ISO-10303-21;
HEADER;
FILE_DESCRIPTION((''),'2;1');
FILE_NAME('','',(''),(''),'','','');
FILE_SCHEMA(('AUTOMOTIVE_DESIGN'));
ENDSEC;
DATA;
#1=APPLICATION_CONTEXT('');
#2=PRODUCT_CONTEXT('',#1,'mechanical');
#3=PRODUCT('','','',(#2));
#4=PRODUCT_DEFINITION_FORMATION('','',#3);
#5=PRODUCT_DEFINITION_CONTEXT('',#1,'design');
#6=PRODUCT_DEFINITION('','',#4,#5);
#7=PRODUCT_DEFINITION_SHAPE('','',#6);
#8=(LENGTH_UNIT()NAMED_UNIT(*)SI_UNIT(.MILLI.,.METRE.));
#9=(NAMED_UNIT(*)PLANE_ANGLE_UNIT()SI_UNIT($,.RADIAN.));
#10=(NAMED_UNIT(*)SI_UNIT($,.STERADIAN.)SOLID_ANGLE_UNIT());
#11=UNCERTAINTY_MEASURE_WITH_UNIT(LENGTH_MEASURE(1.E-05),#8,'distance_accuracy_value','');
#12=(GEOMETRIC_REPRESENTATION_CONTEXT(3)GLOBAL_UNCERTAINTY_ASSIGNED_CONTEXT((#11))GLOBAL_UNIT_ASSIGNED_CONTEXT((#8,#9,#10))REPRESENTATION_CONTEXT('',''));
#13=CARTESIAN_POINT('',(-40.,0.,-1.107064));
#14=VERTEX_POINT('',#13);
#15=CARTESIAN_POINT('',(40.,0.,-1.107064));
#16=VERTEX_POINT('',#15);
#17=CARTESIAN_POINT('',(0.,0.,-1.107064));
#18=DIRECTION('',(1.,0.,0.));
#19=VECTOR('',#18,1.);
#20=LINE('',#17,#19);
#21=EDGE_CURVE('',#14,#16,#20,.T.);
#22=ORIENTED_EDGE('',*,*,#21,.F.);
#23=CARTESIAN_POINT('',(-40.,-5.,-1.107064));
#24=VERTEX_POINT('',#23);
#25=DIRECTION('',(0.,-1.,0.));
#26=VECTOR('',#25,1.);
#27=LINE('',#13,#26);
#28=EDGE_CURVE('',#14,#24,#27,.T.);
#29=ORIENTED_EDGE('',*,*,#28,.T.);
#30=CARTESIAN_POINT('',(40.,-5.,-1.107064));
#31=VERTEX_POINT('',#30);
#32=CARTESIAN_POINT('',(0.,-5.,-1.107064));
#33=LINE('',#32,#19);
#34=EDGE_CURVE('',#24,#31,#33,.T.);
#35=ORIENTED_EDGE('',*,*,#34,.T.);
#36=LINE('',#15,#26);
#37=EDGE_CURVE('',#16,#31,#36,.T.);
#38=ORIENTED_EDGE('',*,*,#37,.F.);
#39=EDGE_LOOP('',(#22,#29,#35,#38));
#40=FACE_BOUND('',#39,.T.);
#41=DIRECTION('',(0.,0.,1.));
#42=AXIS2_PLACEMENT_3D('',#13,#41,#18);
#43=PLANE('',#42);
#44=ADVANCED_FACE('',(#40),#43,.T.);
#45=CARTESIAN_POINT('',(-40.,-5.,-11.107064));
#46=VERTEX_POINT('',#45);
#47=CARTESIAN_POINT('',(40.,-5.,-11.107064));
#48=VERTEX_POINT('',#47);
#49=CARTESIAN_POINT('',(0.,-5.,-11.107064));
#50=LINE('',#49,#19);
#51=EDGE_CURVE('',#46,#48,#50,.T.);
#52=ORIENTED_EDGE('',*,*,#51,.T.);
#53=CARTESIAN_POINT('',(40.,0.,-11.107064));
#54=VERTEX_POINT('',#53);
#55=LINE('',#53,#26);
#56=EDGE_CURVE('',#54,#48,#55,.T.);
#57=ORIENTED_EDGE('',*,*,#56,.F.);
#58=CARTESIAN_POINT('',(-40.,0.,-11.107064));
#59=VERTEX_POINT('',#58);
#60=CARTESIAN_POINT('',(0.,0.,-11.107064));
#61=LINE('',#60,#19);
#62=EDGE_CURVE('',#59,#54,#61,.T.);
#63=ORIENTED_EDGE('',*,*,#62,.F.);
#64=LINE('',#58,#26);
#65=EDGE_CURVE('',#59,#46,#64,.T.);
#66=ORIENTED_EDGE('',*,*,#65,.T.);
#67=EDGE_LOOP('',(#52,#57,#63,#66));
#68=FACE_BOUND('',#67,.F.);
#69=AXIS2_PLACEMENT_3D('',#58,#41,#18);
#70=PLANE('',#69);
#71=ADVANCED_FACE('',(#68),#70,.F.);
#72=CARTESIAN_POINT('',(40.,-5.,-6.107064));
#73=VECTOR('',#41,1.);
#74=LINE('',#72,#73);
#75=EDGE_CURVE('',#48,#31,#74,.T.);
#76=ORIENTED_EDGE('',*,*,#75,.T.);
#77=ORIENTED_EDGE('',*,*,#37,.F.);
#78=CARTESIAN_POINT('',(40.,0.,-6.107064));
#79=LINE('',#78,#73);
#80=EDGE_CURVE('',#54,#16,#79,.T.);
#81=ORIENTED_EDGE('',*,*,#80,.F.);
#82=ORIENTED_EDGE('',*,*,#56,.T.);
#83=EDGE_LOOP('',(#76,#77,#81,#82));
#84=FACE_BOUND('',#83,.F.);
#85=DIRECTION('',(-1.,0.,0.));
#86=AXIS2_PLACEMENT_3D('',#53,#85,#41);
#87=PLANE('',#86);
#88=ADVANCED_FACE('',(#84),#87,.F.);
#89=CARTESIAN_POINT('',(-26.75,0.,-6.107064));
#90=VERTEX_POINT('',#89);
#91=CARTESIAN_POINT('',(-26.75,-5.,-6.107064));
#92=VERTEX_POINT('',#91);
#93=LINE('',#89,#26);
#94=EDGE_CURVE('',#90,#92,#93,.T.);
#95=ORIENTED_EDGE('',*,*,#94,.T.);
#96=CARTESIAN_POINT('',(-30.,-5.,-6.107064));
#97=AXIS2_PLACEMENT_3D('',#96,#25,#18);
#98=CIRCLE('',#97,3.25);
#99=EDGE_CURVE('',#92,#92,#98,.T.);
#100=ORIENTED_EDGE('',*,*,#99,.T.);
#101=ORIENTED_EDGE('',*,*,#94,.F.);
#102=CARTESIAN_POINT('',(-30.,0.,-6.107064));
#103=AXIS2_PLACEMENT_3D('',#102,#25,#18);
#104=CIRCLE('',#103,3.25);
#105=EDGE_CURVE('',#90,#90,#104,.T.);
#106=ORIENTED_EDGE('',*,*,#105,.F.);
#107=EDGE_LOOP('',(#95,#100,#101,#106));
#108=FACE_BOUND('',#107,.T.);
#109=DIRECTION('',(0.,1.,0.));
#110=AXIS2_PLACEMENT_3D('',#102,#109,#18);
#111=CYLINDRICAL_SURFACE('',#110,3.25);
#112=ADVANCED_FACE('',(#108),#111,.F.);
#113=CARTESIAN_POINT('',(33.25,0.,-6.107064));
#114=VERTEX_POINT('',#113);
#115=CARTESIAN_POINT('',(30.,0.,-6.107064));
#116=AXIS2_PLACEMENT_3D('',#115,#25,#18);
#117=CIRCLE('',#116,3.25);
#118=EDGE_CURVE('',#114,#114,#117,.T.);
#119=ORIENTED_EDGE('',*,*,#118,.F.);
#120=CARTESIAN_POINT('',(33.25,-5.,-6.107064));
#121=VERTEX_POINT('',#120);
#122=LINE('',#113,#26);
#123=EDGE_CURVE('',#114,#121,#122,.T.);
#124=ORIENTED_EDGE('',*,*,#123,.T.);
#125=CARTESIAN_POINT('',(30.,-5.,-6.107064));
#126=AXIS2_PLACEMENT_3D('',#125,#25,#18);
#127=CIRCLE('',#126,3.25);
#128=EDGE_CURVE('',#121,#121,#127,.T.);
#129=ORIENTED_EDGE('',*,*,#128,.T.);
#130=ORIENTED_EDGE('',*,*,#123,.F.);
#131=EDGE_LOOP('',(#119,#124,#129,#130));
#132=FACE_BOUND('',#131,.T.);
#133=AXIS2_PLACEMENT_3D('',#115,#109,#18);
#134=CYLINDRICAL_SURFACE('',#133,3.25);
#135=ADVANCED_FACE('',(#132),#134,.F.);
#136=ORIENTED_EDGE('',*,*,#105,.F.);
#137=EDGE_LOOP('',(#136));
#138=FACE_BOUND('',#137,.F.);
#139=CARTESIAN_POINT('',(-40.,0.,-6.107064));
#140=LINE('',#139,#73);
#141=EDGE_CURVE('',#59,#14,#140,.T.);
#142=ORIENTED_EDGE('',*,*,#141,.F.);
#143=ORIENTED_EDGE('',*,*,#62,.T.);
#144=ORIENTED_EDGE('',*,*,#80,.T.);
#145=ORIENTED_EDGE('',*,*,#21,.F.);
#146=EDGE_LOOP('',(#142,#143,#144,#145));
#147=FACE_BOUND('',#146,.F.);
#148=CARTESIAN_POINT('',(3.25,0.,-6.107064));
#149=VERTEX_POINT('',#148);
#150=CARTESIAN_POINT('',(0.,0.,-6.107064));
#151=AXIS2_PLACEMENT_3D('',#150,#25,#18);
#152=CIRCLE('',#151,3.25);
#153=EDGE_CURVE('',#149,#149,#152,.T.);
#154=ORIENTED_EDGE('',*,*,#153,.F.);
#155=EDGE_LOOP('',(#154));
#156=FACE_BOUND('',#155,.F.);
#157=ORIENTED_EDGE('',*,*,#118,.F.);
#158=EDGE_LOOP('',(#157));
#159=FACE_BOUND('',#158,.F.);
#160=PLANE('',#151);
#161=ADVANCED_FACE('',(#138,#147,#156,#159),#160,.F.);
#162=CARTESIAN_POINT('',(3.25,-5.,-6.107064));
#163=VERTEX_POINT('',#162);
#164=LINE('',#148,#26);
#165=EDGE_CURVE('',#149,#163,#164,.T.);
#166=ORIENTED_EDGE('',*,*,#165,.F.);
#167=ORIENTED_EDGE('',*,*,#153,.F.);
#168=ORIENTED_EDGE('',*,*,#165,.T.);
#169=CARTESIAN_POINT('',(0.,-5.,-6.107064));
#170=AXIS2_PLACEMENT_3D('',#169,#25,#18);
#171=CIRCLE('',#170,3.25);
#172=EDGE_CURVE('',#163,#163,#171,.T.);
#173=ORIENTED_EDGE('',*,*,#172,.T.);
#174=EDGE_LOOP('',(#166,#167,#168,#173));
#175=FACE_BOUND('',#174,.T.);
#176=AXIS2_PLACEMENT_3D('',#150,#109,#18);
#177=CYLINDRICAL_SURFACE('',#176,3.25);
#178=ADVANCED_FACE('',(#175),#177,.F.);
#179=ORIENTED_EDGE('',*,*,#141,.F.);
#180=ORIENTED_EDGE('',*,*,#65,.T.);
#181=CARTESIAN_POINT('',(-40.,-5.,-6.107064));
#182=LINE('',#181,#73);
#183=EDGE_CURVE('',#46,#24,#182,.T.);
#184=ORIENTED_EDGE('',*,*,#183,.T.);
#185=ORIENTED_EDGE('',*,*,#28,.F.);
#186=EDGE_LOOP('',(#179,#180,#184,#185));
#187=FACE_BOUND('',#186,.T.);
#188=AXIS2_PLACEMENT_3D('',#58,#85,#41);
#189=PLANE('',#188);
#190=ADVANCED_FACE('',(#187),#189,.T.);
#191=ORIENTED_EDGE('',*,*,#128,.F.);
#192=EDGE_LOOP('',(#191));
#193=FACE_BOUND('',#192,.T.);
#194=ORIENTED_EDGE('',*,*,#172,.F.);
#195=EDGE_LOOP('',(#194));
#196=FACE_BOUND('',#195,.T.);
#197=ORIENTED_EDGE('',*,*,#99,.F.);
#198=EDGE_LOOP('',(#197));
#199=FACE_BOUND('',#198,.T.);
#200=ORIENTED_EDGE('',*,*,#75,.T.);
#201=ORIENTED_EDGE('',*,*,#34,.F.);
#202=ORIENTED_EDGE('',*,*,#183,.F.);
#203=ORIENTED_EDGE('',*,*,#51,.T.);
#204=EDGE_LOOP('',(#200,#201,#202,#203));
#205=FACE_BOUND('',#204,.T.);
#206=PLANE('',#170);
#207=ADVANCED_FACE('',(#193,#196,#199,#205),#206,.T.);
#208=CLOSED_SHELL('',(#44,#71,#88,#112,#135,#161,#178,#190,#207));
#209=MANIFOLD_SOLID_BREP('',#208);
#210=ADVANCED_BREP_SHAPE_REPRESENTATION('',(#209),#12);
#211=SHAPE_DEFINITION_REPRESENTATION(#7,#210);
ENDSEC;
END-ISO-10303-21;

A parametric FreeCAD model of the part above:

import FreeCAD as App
import Part
import Sketcher
Q = App.Units.Quantity

doc = App.newDocument("Part")
params = doc.addObject("Spreadsheet::Sheet", "Params")
for row, (alias, value) in enumerate([
    ("sketch1_diameter", "6.5 mm"),
    ("sketch1_width", "80 mm"),
    ("sketch1_height", "10 mm"),
    ("pad1_length", "5 mm"),
    ("sketch2_diameter", "6.5 mm"),
    ("sketch2_width", "80 mm"),
    ("sketch2_height", "10 mm"),
    ("pad2_length", "5 mm"),
], start=1):
    params.set(f"A{row}", alias)
    params.set(f"B{row}", "=" + value)
    params.setAlias(f"B{row}", alias)

body = doc.addObject("PartDesign::Body", "Body")

# Sketch on XZ plane
sketch1 = doc.addObject("Sketcher::SketchObject", "Sketch")
body.addObject(sketch1)
sketch1.AttachmentSupport = (doc.XZ_Plane, [""])
sketch1.MapMode = "FlatFace"
sketch1.addGeometry([
    Part.LineSegment(App.Vector(-40, -1.1, 0), App.Vector(-40, -11.1, 0)),  # 0
    Part.LineSegment(App.Vector(-40, -11.1, 0), App.Vector(40, -11.1, 0)),  # 1
    Part.LineSegment(App.Vector(40, -11.1, 0), App.Vector(40, -1.1, 0)),  # 2
    Part.LineSegment(App.Vector(40, -1.1, 0), App.Vector(-40, -1.1, 0)),  # 3
    Part.Circle(App.Vector(-30, -6.1, 0), App.Vector(0, 0, 1), 3.2),  # 4
    Part.Circle(App.Vector(0, -6.1, 0), App.Vector(0, 0, 1), 3.2),  # 5
    Part.Circle(App.Vector(30, -6.1, 0), App.Vector(0, 0, 1), 3.2),  # 6
], False)
sketch1.addConstraint([
    Sketcher.Constraint("Coincident", 0, 2, 1, 1),
    Sketcher.Constraint("Coincident", 1, 2, 2, 1),
    Sketcher.Constraint("Coincident", 2, 2, 3, 1),
    Sketcher.Constraint("Coincident", 3, 2, 0, 1),
    Sketcher.Constraint("Vertical", 0),
    Sketcher.Constraint("Horizontal", 1),
    Sketcher.Constraint("Vertical", 2),
    Sketcher.Constraint("Horizontal", 3),
    Sketcher.Constraint("Equal", 4, 5),
    Sketcher.Constraint("Equal", 5, 6),
    Sketcher.Constraint("Symmetric", 4, 3, 6, 3, -2),
    Sketcher.Constraint("PointOnObject", 5, 3, -2),
    Sketcher.Constraint("Horizontal", 4, 3, 5, 3),
    Sketcher.Constraint("Diameter", 4, Q("6.5 mm")),
    Sketcher.Constraint("DistanceX", 1, 1, 1, 2, Q("80 mm")),
    Sketcher.Constraint("DistanceY", 0, 2, 0, 1, Q("10 mm")),
    Sketcher.Constraint("DistanceX", 4, 3, -1, 1, Q("30 mm")),
    Sketcher.Constraint("DistanceX", 0, 2, -1, 1, Q("40 mm")),
    Sketcher.Constraint("DistanceY", 0, 2, 4, 3, Q("5 mm")),
    Sketcher.Constraint("DistanceY", 4, 3, -1, 1, Q("6.107064 mm")),
])
sketch1.setExpression("Constraints[13]", "Params.sketch1_diameter")
sketch1.setExpression("Constraints[14]", "Params.sketch1_width")
sketch1.setExpression("Constraints[15]", "Params.sketch1_height")
pad1 = doc.addObject("PartDesign::Pad", "Pad")
body.addObject(pad1)
pad1.Profile = sketch1
pad1.setExpression("Length", "Params.pad1_length")

# Sketch on XZ plane
sketch2 = doc.addObject("Sketcher::SketchObject", "Sketch001")
body.addObject(sketch2)
sketch2.AttachmentSupport = (doc.XZ_Plane, [""])
sketch2.MapMode = "FlatFace"
sketch2.addGeometry([
    Part.LineSegment(App.Vector(-40, -1.1, 0), App.Vector(-40, -11.1, 0)),  # 0
    Part.LineSegment(App.Vector(-40, -11.1, 0), App.Vector(40, -11.1, 0)),  # 1
    Part.LineSegment(App.Vector(40, -11.1, 0), App.Vector(40, -1.1, 0)),  # 2
    Part.LineSegment(App.Vector(40, -1.1, 0), App.Vector(-40, -1.1, 0)),  # 3
    Part.Circle(App.Vector(-30, -6.1, 0), App.Vector(0, 0, 1), 3.2),  # 4
    Part.Circle(App.Vector(0, -6.1, 0), App.Vector(0, 0, 1), 3.2),  # 5
    Part.Circle(App.Vector(30, -6.1, 0), App.Vector(0, 0, 1), 3.2),  # 6
], False)
sketch2.addConstraint([
    Sketcher.Constraint("Coincident", 0, 2, 1, 1),
    Sketcher.Constraint("Coincident", 1, 2, 2, 1),
    Sketcher.Constraint("Coincident", 2, 2, 3, 1),
    Sketcher.Constraint("Coincident", 3, 2, 0, 1),
    Sketcher.Constraint("Vertical", 0),
    Sketcher.Constraint("Horizontal", 1),
    Sketcher.Constraint("Vertical", 2),
    Sketcher.Constraint("Horizontal", 3),
    Sketcher.Constraint("Equal", 4, 5),
    Sketcher.Constraint("Equal", 5, 6),
    Sketcher.Constraint("Symmetric", 4, 3, 6, 3, -2),
    Sketcher.Constraint("PointOnObject", 5, 3, -2),
    Sketcher.Constraint("Horizontal", 4, 3, 5, 3),
    Sketcher.Constraint("Diameter", 4, Q("6.5 mm")),
    Sketcher.Constraint("DistanceX", 1, 1, 1, 2, Q("80 mm")),
    Sketcher.Constraint("DistanceY", 0, 2, 0, 1, Q("10 mm")),
    Sketcher.Constraint("DistanceX", 4, 3, -1, 1, Q("30 mm")),
    Sketcher.Constraint("DistanceX", 0, 2, -1, 1, Q("40 mm")),
    Sketcher.Constraint("DistanceY", 0, 2, 4, 3, Q("5 mm")),
    Sketcher.Constraint("DistanceY", 4, 3, -1, 1, Q("6.107064 mm")),
])
sketch2.setExpression("Constraints[13]", "Params.sketch2_diameter")
sketch2.setExpression("Constraints[14]", "Params.sketch2_width")
sketch2.setExpression("Constraints[15]", "Params.sketch2_height")
pad2 = doc.addObject("PartDesign::Pad", "Pad001")
body.addObject(pad2)
pad2.Profile = sketch2
pad2.setExpression("Length", "Params.pad2_length")

doc.recompute()
